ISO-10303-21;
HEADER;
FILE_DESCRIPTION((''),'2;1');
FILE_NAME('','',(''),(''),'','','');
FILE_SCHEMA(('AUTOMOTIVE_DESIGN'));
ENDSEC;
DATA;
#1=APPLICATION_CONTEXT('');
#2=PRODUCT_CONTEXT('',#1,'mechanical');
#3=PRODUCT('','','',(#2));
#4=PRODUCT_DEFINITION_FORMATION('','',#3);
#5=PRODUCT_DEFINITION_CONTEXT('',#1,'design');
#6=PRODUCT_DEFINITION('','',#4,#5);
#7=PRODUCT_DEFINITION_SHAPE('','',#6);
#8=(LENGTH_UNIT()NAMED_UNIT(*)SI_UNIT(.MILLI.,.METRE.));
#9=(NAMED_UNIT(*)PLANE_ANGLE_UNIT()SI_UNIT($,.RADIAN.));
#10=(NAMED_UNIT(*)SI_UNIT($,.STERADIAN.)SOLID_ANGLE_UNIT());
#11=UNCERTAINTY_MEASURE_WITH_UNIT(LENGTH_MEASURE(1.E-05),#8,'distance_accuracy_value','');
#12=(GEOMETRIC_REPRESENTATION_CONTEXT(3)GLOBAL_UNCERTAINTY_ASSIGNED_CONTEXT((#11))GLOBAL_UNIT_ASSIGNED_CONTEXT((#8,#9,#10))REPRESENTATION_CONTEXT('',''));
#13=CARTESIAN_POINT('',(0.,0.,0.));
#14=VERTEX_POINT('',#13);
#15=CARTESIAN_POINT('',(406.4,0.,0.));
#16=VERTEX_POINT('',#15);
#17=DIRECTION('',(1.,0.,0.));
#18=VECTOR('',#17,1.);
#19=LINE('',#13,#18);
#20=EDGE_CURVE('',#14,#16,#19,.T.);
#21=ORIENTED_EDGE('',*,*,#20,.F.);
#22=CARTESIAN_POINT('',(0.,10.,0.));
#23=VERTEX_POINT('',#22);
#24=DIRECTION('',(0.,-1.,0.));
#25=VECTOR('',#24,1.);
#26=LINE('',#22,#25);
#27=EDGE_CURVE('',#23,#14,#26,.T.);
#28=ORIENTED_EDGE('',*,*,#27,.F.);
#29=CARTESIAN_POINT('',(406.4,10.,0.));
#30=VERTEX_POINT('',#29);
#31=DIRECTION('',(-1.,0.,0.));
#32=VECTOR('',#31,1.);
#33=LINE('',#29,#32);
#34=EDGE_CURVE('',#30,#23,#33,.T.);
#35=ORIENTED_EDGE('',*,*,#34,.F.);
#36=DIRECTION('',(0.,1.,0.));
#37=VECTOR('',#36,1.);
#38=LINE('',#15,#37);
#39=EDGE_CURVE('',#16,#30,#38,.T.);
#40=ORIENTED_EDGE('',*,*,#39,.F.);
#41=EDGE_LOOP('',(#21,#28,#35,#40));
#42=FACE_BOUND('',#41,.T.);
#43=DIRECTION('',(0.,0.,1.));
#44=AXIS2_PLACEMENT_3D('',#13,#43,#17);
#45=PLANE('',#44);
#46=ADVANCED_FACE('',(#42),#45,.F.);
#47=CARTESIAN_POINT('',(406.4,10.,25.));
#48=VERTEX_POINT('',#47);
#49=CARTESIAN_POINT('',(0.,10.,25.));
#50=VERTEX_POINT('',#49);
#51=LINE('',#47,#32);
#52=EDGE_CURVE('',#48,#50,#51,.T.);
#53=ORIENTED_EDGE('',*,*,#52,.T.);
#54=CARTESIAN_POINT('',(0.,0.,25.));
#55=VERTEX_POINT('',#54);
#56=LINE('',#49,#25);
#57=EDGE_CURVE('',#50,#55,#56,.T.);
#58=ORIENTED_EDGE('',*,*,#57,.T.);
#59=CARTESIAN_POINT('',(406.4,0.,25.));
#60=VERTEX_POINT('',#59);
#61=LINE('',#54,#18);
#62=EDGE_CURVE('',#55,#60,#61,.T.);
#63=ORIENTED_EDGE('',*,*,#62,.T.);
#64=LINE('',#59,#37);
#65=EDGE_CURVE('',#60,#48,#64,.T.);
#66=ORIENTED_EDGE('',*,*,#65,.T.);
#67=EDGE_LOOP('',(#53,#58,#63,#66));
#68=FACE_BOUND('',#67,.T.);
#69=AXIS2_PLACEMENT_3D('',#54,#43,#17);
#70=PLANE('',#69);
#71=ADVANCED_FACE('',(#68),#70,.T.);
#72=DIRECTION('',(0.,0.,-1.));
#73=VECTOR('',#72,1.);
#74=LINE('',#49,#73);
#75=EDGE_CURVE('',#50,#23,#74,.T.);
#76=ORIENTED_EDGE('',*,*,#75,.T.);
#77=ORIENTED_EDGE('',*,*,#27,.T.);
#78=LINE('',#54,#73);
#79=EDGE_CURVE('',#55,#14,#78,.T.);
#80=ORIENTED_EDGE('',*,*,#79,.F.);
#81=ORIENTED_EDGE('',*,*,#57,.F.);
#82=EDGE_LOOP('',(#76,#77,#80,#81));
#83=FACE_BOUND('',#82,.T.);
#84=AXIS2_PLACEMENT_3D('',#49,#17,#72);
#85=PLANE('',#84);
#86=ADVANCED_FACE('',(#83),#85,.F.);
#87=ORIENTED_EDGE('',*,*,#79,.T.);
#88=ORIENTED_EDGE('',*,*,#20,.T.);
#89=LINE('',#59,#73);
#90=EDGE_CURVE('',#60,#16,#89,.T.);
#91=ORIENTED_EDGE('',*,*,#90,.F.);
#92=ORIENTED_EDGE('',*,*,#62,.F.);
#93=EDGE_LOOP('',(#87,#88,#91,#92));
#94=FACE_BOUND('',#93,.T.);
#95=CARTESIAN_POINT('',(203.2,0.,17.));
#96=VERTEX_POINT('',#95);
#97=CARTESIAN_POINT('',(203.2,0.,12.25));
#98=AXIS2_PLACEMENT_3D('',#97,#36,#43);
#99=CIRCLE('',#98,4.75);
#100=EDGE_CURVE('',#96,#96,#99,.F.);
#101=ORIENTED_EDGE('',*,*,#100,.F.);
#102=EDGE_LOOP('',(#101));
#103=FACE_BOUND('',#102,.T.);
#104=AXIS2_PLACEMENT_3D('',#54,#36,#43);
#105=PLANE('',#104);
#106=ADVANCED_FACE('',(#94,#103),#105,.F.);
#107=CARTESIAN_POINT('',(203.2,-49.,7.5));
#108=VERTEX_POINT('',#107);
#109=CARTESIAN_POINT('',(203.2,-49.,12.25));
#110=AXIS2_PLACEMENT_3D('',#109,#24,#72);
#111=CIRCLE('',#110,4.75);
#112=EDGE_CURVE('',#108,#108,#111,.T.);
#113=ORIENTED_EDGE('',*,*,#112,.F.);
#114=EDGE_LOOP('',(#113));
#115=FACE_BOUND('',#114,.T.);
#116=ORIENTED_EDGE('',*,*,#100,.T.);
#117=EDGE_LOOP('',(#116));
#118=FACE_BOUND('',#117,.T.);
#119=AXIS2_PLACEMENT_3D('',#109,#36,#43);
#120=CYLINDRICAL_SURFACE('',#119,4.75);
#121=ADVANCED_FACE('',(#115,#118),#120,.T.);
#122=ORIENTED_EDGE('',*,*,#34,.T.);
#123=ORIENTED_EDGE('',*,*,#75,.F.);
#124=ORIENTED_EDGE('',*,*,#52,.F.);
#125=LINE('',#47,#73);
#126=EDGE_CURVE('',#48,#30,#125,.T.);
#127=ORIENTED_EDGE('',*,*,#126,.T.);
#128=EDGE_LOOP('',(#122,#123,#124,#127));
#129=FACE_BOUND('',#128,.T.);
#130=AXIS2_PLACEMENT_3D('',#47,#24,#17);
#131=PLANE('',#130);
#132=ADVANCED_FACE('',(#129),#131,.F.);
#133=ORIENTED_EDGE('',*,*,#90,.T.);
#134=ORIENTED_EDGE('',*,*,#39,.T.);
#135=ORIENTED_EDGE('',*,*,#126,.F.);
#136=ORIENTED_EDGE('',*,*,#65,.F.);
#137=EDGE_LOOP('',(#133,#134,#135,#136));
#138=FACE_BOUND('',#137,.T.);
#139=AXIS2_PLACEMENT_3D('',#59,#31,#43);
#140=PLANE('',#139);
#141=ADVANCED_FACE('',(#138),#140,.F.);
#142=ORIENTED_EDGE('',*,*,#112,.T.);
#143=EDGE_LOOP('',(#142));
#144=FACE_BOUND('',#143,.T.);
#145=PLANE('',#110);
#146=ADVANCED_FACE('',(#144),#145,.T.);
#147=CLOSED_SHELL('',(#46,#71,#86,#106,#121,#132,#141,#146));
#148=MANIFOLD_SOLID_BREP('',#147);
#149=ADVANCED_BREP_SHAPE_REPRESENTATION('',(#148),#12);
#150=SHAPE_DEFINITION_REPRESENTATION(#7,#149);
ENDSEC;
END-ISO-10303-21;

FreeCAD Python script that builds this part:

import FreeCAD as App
import Part
import Sketcher
from FreeCAD import Vector


def add_polygon(sketch, points):
    """Adds a closed chain of lines whose ends are joined by coincident constraints."""
    first, n = sketch.GeometryCount, len(points)
    for a, b in zip(points, points[1:] + points[:1]):
        sketch.addGeometry(Part.LineSegment(App.Vector(*a, 0), App.Vector(*b, 0)), False)
    for i in range(n):
        sketch.addConstraint(Sketcher.Constraint("Coincident", first + i, 2, first + (i + 1) % n, 1))

doc = App.newDocument("Part")
params = doc.addObject("Spreadsheet::Sheet", "Params")
for row, (alias, value) in enumerate([
    ("sketch1_height", "10 mm"),
    ("sketch1_width", "406.4 mm"),
    ("pad1_length", "25 mm"),
    ("sketch2_diameter", "9.5 mm"),
    ("pad2_length", "49 mm"),
], start=1):
    params.set(f"A{row}", alias)
    params.set(f"B{row}", "=" + value)
    params.setAlias(f"B{row}", alias)

body = doc.addObject("PartDesign::Body", "Body")

sketch1 = body.newObject("Sketcher::SketchObject", "Sketch")
sketch1.AttachmentSupport = (doc.getObject("XY_Plane"), [""])
sketch1.MapMode = "FlatFace"
add_polygon(sketch1, [(0, 10), (0, 0), (406.4, 0), (406.4, 10)])
sketch1.addConstraint([
    Sketcher.Constraint("Vertical", 0),
    Sketcher.Constraint("Horizontal", 1),
    Sketcher.Constraint("Vertical", 2),
    Sketcher.Constraint("Horizontal", 3),
    Sketcher.Constraint("Coincident", 0, 2, -1, 1),
    Sketcher.Constraint("DistanceY", 0, 2, 0, 1, 10.0),
    Sketcher.Constraint("DistanceX", 1, 1, 1, 2, 406.4),
])
sketch1.setExpression("Constraints[9]", "Params.sketch1_height")
sketch1.setExpression("Constraints[10]", "Params.sketch1_width")
pad1 = body.newObject("PartDesign::Pad", "Pad")
pad1.Profile = sketch1
pad1.setExpression("Length", "Params.pad1_length")

sketch2 = body.newObject("Sketcher::SketchObject", "Sketch001")
sketch2.AttachmentSupport = (doc.getObject("XZ_Plane"), [""])
sketch2.MapMode = "FlatFace"
sketch2.addGeometry(Part.Circle(Vector(203.2, 12.25, 0), Vector(0, 0, 1), 4.75), False)
sketch2.addConstraint([
    Sketcher.Constraint("Diameter", 0, 9.5),
    Sketcher.Constraint("DistanceX", -1, 1, 0, 3, 203.2),
    Sketcher.Constraint("DistanceY", -1, 1, 0, 3, 12.25),
])
sketch2.setExpression("Constraints[0]", "Params.sketch2_diameter")
pad2 = body.newObject("PartDesign::Pad", "Pad001")
pad2.Profile = sketch2
pad2.setExpression("Length", "Params.pad2_length")

doc.recompute()
